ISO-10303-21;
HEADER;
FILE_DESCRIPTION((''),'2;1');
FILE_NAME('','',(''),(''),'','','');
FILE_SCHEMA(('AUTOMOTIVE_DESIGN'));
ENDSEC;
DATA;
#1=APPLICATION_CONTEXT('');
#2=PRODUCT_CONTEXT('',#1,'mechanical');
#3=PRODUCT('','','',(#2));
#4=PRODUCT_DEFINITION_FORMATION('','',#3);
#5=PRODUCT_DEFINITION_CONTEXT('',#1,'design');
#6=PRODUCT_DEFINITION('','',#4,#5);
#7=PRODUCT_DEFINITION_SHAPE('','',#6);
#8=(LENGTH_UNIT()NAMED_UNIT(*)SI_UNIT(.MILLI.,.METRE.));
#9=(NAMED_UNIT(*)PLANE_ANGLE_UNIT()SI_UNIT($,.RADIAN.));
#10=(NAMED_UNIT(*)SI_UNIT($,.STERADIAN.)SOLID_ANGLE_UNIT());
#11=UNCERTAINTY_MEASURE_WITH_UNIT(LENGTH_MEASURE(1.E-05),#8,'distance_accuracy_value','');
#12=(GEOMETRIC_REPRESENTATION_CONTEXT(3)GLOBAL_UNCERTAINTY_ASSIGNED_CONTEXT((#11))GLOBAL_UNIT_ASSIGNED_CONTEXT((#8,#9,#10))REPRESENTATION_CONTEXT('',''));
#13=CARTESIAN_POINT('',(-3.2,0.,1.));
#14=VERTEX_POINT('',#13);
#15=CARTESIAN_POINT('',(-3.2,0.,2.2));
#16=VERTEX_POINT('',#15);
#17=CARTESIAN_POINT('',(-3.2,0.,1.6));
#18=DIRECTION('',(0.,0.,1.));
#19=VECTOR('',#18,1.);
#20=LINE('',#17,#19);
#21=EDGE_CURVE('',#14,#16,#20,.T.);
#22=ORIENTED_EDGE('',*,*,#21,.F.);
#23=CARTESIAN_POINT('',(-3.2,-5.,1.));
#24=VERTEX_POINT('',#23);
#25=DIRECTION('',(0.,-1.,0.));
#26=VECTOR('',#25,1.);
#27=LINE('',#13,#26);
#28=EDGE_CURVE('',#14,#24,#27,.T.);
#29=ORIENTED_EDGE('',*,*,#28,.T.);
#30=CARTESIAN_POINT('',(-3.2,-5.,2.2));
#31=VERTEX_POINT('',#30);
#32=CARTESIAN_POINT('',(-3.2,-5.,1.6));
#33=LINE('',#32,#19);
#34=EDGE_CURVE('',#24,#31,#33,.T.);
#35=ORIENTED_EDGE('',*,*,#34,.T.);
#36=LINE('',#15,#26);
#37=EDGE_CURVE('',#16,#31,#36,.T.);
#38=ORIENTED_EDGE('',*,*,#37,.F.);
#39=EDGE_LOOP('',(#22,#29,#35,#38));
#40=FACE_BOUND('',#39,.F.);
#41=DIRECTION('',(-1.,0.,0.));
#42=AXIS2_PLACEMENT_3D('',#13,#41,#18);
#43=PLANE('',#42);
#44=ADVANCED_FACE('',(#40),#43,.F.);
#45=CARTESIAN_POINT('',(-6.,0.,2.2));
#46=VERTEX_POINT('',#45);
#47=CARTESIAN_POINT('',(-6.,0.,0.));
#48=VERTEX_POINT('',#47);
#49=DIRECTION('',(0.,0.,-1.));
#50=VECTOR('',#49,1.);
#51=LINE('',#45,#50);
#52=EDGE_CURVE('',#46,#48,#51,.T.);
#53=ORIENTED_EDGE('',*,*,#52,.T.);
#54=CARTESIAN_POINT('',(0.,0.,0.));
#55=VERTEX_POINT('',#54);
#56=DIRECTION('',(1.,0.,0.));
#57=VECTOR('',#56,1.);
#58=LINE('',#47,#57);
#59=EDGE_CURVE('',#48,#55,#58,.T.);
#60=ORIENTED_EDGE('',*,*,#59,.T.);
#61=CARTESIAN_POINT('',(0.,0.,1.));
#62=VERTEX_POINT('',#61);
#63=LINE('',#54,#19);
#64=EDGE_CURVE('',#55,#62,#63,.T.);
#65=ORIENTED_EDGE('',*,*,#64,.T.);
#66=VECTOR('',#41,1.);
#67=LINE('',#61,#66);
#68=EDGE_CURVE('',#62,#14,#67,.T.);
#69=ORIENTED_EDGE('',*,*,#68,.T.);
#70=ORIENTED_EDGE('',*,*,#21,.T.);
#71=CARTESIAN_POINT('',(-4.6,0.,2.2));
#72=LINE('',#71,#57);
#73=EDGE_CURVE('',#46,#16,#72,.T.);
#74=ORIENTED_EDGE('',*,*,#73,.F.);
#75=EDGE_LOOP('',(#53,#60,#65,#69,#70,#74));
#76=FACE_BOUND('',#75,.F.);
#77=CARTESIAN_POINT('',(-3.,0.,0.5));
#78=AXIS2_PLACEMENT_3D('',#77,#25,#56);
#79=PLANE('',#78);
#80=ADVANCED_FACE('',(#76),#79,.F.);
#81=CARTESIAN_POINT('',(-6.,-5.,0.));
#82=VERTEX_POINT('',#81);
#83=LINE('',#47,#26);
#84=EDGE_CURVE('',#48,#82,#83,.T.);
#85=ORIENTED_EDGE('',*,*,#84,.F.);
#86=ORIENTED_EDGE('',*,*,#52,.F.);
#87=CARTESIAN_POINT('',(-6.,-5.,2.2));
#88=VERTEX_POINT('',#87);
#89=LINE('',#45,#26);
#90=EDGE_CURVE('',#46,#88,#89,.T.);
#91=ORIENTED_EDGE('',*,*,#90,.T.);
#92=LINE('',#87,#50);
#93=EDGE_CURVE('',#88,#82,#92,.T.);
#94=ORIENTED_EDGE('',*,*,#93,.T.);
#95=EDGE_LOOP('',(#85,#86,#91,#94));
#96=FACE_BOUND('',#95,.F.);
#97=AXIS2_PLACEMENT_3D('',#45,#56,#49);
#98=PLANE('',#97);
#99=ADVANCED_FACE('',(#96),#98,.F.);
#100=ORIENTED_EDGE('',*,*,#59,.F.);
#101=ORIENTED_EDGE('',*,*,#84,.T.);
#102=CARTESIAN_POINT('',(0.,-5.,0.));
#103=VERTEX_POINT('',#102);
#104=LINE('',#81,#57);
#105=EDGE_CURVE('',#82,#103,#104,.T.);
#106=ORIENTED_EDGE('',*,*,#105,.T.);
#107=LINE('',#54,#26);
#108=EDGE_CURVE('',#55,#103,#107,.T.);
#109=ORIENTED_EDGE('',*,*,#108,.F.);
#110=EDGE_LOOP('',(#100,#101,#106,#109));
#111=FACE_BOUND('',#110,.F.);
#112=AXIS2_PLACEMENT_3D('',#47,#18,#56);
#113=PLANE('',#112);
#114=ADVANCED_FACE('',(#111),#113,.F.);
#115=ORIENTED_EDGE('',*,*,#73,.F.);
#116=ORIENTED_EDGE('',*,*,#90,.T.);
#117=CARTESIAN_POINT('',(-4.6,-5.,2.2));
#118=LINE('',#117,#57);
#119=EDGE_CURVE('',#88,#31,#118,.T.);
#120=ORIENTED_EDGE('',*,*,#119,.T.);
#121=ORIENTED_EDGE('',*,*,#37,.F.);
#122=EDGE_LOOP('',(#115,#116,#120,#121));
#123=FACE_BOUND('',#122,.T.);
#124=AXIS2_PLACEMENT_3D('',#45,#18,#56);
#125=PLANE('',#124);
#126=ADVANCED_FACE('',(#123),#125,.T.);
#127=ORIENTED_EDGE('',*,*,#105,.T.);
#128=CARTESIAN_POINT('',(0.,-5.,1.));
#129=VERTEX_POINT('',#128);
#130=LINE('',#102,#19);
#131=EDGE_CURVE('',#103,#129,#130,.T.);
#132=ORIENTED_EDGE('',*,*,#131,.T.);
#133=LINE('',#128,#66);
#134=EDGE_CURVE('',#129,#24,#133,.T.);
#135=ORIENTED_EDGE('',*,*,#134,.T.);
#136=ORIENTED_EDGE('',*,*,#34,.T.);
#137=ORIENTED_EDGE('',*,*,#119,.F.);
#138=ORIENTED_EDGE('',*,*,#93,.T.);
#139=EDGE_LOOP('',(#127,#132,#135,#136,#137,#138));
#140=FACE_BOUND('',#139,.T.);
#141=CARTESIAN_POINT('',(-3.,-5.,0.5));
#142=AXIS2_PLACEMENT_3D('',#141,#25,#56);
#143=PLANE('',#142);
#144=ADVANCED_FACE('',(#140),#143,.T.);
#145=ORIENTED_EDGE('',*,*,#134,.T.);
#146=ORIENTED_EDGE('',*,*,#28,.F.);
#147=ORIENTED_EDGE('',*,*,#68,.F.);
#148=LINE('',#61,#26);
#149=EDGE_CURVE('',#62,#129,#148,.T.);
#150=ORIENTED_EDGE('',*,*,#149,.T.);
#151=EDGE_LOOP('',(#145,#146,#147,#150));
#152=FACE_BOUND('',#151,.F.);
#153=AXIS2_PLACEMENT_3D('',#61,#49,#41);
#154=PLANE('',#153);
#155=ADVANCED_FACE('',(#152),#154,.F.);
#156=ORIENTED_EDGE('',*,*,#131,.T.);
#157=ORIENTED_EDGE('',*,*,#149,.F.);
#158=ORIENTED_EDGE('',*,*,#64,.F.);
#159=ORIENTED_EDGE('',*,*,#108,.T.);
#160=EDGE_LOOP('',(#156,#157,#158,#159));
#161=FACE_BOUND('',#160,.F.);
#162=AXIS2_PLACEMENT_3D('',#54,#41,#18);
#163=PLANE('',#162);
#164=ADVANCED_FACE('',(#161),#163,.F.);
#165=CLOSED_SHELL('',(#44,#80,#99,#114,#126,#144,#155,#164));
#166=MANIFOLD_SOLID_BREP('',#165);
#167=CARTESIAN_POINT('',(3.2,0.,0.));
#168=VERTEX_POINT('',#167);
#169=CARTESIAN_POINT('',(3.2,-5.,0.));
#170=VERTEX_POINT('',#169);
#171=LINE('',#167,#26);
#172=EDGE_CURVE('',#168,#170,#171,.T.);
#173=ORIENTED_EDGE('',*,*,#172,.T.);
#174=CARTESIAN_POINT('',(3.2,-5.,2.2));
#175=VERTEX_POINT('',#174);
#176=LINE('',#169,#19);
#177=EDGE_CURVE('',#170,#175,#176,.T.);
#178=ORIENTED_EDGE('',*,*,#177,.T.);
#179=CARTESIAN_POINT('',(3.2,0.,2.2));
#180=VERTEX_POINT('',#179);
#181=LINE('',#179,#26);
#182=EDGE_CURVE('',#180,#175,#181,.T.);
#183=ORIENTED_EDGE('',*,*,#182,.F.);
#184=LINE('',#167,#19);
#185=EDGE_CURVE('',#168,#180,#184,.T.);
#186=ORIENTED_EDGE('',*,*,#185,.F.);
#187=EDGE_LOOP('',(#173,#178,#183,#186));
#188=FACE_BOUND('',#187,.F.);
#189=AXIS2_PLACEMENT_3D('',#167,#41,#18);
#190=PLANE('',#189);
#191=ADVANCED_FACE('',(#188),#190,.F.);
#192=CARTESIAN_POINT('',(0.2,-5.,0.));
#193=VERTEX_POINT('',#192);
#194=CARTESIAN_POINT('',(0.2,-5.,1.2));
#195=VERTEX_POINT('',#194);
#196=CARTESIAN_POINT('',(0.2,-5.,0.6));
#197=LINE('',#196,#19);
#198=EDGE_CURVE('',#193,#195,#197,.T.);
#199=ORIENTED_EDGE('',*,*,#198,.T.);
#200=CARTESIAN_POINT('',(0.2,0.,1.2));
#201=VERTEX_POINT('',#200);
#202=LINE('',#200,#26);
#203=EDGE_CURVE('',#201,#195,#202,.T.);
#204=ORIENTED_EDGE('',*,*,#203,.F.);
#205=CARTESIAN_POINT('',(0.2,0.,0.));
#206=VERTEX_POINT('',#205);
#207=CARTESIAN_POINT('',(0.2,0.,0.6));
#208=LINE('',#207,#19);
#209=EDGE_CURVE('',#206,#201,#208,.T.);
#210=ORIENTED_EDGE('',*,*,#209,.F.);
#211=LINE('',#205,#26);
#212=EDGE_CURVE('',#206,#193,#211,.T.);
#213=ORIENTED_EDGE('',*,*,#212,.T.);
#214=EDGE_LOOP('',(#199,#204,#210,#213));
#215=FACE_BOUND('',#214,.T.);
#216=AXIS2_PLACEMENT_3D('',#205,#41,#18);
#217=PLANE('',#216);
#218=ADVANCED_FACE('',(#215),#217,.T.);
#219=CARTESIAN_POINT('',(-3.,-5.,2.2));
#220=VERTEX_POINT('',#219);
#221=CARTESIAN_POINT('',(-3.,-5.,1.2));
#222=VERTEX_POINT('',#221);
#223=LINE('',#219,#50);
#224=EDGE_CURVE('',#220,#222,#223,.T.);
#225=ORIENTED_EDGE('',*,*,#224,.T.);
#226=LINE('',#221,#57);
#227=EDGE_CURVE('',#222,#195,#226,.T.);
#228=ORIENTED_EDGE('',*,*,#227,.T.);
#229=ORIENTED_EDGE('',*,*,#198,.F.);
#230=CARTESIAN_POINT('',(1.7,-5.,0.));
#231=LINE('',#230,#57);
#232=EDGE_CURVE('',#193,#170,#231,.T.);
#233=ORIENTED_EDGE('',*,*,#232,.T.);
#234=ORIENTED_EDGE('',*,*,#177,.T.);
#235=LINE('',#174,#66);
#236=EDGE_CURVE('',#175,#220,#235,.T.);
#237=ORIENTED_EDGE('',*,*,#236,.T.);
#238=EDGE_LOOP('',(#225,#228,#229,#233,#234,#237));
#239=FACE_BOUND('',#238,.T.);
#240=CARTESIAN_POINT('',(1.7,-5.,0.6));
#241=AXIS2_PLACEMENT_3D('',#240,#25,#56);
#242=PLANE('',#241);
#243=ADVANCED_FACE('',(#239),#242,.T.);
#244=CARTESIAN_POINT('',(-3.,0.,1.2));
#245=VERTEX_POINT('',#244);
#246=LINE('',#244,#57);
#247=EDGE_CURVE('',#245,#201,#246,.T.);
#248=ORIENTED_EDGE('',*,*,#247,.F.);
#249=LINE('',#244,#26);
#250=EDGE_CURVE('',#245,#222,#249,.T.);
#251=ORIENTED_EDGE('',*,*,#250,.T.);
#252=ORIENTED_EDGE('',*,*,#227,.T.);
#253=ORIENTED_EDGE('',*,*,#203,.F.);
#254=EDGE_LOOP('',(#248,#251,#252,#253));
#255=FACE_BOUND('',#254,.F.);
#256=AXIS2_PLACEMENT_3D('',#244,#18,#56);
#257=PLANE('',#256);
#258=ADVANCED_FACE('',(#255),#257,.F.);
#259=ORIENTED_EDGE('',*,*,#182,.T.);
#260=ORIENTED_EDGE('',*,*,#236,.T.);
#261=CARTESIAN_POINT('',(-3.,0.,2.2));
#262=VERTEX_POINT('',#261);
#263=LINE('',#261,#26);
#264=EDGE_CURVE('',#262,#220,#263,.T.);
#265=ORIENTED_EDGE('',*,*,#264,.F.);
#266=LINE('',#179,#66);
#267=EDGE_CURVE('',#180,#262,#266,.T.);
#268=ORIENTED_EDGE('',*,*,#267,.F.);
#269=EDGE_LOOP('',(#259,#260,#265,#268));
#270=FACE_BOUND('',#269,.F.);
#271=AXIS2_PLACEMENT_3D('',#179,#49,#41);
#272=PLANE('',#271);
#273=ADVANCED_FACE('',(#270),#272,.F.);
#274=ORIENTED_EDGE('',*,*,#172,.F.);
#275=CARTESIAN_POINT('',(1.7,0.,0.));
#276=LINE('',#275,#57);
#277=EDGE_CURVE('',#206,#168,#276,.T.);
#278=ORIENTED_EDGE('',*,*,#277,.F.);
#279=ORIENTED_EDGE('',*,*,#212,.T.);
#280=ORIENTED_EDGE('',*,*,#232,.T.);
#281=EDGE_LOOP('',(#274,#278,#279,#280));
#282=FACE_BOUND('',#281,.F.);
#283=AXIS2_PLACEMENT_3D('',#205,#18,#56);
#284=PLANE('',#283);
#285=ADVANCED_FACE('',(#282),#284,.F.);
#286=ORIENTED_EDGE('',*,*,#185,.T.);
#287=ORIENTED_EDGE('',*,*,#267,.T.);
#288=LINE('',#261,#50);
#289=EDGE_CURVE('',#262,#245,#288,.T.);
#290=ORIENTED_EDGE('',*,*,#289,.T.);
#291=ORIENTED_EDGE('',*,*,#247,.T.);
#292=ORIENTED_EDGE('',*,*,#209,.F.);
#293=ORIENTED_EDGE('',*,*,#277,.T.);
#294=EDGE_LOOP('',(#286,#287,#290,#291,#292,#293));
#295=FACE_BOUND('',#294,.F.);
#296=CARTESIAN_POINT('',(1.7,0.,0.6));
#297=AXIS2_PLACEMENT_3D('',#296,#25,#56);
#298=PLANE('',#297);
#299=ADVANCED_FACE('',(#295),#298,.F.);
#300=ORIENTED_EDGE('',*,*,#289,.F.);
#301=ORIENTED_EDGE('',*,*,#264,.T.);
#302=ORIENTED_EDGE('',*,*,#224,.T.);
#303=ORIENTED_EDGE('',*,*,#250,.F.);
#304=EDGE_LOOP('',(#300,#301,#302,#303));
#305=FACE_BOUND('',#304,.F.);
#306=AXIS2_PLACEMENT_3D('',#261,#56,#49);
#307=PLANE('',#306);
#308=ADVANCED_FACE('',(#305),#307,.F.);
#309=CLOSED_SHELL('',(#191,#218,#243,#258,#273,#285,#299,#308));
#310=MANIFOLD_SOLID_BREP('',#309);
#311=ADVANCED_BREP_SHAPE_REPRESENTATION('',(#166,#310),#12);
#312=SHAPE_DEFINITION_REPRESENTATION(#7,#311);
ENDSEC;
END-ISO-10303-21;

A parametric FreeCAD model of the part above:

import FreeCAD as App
import Part
import Sketcher
from FreeCAD import Vector

doc = App.newDocument("Part")
body = doc.addObject("PartDesign::Body", "Body")
body.AllowCompound = True

sketch1 = doc.addObject("Sketcher::SketchObject", "Sketch")
body.addObject(sketch1)
sketch1.AttachmentSupport = (doc.XZ_Plane, [""])
sketch1.MapMode = "FlatFace"
sketch1.addGeometry(Part.LineSegment(Vector(-6, 0, 0), Vector(0, 0, 0)), False)
sketch1.addGeometry(Part.LineSegment(Vector(0, 0, 0), Vector(0, 1, 0)), False)
sketch1.addGeometry(Part.LineSegment(Vector(0, 1, 0), Vector(-3.2, 1, 0)), False)
sketch1.addGeometry(Part.LineSegment(Vector(-3.2, 1, 0), Vector(-3.2, 2.2, 0)), False)
sketch1.addGeometry(Part.LineSegment(Vector(-3.2, 2.2, 0), Vector(-6, 2.2, 0)), False)
sketch1.addGeometry(Part.LineSegment(Vector(-6, 2.2, 0), Vector(-6, 0, 0)), False)
sketch1.addGeometry(Part.LineSegment(Vector(0.2, 1.2, 0), Vector(0.2, 0, 0)), False)
sketch1.addGeometry(Part.LineSegment(Vector(0.2, 0, 0), Vector(3.2, 0, 0)), False)
sketch1.addGeometry(Part.LineSegment(Vector(3.2, 0, 0), Vector(3.2, 2.2, 0)), False)
sketch1.addGeometry(Part.LineSegment(Vector(3.2, 2.2, 0), Vector(-3, 2.2, 0)), False)
sketch1.addGeometry(Part.LineSegment(Vector(-3, 2.2, 0), Vector(-3, 1.2, 0)), False)
sketch1.addGeometry(Part.LineSegment(Vector(-3, 1.2, 0), Vector(0.2, 1.2, 0)), False)
sketch1.addConstraint(Sketcher.Constraint("Coincident", 0, 2, 1, 1))
sketch1.addConstraint(Sketcher.Constraint("Coincident", 1, 2, 2, 1))
sketch1.addConstraint(Sketcher.Constraint("Coincident", 2, 2, 3, 1))
sketch1.addConstraint(Sketcher.Constraint("Coincident", 3, 2, 4, 1))
sketch1.addConstraint(Sketcher.Constraint("Coincident", 4, 2, 5, 1))
sketch1.addConstraint(Sketcher.Constraint("Coincident", 5, 2, 0, 1))
sketch1.addConstraint(Sketcher.Constraint("Coincident", 6, 2, 7, 1))
sketch1.addConstraint(Sketcher.Constraint("Coincident", 7, 2, 8, 1))
sketch1.addConstraint(Sketcher.Constraint("Coincident", 8, 2, 9, 1))
sketch1.addConstraint(Sketcher.Constraint("Coincident", 9, 2, 10, 1))
sketch1.addConstraint(Sketcher.Constraint("Coincident", 10, 2, 11, 1))
sketch1.addConstraint(Sketcher.Constraint("Coincident", 11, 2, 6, 1))
sketch1.addConstraint(Sketcher.Constraint("Horizontal", 0))
sketch1.addConstraint(Sketcher.Constraint("Vertical", 1))
sketch1.addConstraint(Sketcher.Constraint("Horizontal", 2))
sketch1.addConstraint(Sketcher.Constraint("Vertical", 3))
sketch1.addConstraint(Sketcher.Constraint("Horizontal", 4))
sketch1.addConstraint(Sketcher.Constraint("Vertical", 5))
sketch1.addConstraint(Sketcher.Constraint("Vertical", 6))
sketch1.addConstraint(Sketcher.Constraint("Horizontal", 7))
sketch1.addConstraint(Sketcher.Constraint("Vertical", 8))
sketch1.addConstraint(Sketcher.Constraint("Horizontal", 9))
sketch1.addConstraint(Sketcher.Constraint("Vertical", 10))
sketch1.addConstraint(Sketcher.Constraint("Horizontal", 11))
sketch1.addConstraint(Sketcher.Constraint("Coincident", 0, 2, -1, 1))
sketch1.addConstraint(Sketcher.Constraint("Symmetric", 3, 2, 8, 2, -2))
sketch1.addConstraint(Sketcher.Constraint("PointOnObject", 6, 2, -1))
sketch1.addConstraint(Sketcher.Constraint("Equal", 2, 11))
sketch1.addConstraint(Sketcher.Constraint("Equal", 3, 6))
sketch1.addConstraint(Sketcher.Constraint("DistanceX", 0, 1, 0, 2, 6.0))
sketch1.addConstraint(Sketcher.Constraint("DistanceX", 7, 1, 7, 2, 3.0))
sketch1.addConstraint(Sketcher.Constraint("DistanceY", 1, 1, 1, 2, 1.0))
sketch1.addConstraint(Sketcher.Constraint("DistanceX", 2, 2, 2, 1, 3.2))
sketch1.addConstraint(Sketcher.Constraint("DistanceY", 3, 1, 3, 2, 1.2))
pad1 = doc.addObject("PartDesign::Pad", "Pad")
body.addObject(pad1)
pad1.Profile = sketch1
pad1.Length = 5

doc.recompute()
